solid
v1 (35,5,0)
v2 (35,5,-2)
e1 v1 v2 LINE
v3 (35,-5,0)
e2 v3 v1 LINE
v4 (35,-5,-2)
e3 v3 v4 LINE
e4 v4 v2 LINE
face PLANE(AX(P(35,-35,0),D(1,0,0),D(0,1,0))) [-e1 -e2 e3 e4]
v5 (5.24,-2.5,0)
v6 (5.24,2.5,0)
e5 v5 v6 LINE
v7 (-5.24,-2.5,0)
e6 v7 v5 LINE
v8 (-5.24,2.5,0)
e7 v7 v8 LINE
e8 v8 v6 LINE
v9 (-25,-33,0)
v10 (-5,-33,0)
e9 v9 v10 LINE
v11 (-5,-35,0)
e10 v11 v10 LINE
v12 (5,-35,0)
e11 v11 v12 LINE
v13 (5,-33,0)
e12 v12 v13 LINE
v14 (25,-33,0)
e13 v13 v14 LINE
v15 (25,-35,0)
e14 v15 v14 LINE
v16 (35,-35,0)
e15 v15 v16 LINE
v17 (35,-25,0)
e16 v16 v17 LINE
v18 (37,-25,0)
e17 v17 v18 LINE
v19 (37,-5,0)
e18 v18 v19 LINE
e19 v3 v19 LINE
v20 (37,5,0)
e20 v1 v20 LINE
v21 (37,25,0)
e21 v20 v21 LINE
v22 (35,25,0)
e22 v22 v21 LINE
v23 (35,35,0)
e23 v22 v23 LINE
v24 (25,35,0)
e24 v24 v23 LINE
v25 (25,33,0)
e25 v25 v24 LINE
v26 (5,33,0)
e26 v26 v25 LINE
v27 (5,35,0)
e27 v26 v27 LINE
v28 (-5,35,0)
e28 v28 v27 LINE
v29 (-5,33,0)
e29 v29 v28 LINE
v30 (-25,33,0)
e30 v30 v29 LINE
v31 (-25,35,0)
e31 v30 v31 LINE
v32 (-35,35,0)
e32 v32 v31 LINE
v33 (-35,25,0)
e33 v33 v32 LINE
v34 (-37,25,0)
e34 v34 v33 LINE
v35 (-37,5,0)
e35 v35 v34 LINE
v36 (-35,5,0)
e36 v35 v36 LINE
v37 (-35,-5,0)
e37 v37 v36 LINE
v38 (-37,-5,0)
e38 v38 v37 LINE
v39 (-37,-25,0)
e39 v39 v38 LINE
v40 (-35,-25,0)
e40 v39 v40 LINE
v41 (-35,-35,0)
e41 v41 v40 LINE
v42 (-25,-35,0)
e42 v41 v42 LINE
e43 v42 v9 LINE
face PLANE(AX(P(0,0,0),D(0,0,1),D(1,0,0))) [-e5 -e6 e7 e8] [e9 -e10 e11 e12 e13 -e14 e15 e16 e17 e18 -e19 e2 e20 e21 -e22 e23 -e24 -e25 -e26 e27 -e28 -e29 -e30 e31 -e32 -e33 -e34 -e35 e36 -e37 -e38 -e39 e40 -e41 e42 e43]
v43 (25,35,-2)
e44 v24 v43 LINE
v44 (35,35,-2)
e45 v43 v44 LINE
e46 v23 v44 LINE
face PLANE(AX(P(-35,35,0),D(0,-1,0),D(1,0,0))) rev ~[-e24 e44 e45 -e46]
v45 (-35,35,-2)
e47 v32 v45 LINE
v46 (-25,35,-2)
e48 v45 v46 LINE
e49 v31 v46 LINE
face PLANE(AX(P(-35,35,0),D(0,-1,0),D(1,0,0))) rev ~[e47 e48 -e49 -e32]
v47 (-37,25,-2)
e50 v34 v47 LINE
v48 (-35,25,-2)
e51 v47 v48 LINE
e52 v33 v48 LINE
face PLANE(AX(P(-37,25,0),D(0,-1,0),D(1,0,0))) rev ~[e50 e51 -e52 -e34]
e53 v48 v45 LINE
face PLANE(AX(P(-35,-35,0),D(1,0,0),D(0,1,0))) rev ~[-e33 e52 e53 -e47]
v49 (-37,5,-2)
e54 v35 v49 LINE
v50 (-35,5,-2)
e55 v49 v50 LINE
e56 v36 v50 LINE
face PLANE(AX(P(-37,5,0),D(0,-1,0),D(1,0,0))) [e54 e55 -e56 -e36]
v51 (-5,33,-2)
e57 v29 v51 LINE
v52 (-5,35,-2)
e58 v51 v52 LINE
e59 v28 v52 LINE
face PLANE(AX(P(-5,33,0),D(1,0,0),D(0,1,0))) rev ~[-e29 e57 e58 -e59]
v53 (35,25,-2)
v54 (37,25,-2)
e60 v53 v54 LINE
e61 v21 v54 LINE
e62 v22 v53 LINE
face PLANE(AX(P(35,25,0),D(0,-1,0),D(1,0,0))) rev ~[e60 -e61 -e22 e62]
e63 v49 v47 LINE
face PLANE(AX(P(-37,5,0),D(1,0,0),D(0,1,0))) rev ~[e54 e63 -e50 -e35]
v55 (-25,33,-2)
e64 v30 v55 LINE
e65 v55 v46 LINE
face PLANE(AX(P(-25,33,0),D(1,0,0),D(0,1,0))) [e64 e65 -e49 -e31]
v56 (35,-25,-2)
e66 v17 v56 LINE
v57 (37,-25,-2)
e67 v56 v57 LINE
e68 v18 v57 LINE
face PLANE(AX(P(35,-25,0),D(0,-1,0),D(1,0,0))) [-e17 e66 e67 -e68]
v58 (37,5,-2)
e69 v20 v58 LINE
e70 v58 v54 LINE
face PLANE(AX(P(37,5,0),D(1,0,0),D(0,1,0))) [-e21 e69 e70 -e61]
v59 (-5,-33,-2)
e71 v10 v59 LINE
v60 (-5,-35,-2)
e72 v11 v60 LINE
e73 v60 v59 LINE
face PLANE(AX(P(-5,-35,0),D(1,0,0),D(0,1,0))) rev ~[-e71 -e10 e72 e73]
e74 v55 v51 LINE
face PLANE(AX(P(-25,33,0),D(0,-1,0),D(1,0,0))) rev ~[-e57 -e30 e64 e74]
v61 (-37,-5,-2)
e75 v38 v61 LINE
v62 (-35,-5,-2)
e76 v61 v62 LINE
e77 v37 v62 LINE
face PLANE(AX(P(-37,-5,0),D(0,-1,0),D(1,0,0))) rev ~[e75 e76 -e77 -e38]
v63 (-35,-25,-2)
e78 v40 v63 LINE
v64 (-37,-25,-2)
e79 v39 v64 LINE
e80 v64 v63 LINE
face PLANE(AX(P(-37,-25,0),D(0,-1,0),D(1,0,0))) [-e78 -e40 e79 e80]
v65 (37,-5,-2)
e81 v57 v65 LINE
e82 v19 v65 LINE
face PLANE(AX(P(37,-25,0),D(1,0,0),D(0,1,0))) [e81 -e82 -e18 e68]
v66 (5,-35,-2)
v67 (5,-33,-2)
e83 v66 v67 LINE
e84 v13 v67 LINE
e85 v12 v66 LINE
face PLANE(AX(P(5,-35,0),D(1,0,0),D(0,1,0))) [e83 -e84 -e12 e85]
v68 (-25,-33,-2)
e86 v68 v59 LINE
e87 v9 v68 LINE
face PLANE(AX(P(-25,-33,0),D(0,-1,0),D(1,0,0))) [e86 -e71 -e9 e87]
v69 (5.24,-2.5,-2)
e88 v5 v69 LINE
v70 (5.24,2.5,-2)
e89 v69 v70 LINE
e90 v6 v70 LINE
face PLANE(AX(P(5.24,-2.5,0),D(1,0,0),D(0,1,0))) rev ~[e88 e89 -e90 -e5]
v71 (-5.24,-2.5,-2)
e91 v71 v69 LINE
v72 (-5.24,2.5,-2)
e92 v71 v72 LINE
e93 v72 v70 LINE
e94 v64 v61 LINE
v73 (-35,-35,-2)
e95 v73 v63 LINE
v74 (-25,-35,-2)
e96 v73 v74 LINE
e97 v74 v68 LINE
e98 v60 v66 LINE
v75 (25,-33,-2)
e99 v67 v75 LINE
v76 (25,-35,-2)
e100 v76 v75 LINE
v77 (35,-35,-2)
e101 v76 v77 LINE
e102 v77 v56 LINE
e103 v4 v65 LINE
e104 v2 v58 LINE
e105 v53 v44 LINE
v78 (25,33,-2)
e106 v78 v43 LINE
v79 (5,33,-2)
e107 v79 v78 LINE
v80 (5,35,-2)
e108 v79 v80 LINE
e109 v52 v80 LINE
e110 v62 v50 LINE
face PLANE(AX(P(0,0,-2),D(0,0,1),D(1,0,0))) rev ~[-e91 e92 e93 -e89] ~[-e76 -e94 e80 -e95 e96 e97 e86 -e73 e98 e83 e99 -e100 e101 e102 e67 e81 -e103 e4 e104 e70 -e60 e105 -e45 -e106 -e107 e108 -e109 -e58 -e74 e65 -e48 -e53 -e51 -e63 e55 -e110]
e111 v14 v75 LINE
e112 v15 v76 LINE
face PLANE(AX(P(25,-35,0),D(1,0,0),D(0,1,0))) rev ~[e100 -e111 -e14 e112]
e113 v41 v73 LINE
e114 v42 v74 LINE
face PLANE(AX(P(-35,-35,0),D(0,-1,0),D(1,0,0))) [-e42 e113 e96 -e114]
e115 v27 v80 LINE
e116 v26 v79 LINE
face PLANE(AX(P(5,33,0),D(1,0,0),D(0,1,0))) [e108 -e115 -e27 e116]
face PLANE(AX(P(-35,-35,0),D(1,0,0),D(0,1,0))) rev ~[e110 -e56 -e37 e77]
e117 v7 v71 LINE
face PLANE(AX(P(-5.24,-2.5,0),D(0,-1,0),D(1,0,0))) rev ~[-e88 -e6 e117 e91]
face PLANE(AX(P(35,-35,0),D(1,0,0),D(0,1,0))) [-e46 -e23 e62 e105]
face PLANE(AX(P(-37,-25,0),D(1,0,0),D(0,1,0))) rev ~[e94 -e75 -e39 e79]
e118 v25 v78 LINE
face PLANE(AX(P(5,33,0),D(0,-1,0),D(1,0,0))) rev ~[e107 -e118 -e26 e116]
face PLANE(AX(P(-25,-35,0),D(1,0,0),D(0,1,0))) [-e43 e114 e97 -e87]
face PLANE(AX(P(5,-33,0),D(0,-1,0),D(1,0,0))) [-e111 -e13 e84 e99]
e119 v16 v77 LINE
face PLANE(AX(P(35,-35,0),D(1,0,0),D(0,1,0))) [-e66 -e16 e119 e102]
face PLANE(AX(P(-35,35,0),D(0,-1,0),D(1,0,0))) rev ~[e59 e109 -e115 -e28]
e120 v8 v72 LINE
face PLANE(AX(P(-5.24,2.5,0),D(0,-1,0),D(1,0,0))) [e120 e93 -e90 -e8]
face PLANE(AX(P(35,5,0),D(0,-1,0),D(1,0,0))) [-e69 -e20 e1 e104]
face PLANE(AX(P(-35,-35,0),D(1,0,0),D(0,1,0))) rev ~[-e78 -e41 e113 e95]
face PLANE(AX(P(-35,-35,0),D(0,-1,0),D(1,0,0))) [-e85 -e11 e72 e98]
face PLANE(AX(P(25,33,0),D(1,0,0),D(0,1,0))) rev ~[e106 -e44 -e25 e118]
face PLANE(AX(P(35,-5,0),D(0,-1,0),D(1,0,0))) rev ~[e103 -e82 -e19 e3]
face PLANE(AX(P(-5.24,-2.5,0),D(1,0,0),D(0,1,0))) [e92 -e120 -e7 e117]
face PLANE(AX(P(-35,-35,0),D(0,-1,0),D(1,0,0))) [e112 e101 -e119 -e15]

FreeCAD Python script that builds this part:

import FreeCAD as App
import Part
import Sketcher

V = App.Vector


def add_polygon(sketch, points):
    """Adds a closed chain of lines whose ends are joined by coincident constraints."""
    first, n = sketch.GeometryCount, len(points)
    for a, b in zip(points, points[1:] + points[:1]):
        sketch.addGeometry(Part.LineSegment(App.Vector(*a, 0), App.Vector(*b, 0)), False)
    for i in range(n):
        sketch.addConstraint(Sketcher.Constraint("Coincident", first + i, 2, first + (i + 1) % n, 1))

doc = App.newDocument("Part")
body = doc.addObject("PartDesign::Body", "Body")

# Sketch on XY plane
sketch1 = doc.addObject("Sketcher::SketchObject", "Sketch")
body.addObject(sketch1)
sketch1.AttachmentSupport = (doc.XY_Plane, [""])
sketch1.MapMode = "FlatFace"
add_polygon(sketch1, [(-35, 35), (-35, -35), (35, -35), (35, 35)])  # lines 0-3
sketch1.addConstraint([
    Sketcher.Constraint("Vertical", 0),
    Sketcher.Constraint("Horizontal", 1),
    Sketcher.Constraint("Vertical", 2),
    Sketcher.Constraint("Horizontal", 3),
    Sketcher.Constraint("Symmetric", 0, 2, 2, 2, -1, 1),
    Sketcher.Constraint("Equal", 3, 0),
    Sketcher.Constraint("DistanceX", 1, 1, 1, 2, 70.0),
])
pad1 = doc.addObject("PartDesign::Pad", "Pad")
body.addObject(pad1)
pad1.Profile = sketch1
pad1.Length = 2
pad1.Reversed = True

# Sketch on XY plane
sketch2 = doc.addObject("Sketcher::SketchObject", "Sketch001")
body.addObject(sketch2)
sketch2.AttachmentSupport = (doc.XY_Plane, [""])
sketch2.MapMode = "FlatFace"
add_polygon(sketch2, [(-37, 25), (-37, 5), (-35, 5), (-35, 25)])  # lines 0-3
add_polygon(sketch2, [(-37, -5), (-37, -25), (-35, -25), (-35, -5)])  # lines 4-7
add_polygon(sketch2, [(35, -5), (35, -25), (37, -25), (37, -5)])  # lines 8-11
add_polygon(sketch2, [(35, 25), (35, 5), (37, 5), (37, 25)])  # lines 12-15
sketch2.addConstraint([
    Sketcher.Constraint("Vertical", 0),
    Sketcher.Constraint("Horizontal", 1),
    Sketcher.Constraint("Vertical", 2),
    Sketcher.Constraint("Horizontal", 3),
    Sketcher.Constraint("Vertical", 4),
    Sketcher.Constraint("Horizontal", 5),
    Sketcher.Constraint("Vertical", 6),
    Sketcher.Constraint("Horizontal", 7),
    Sketcher.Constraint("Vertical", 8),
    Sketcher.Constraint("Horizontal", 9),
    Sketcher.Constraint("Vertical", 10),
    Sketcher.Constraint("Horizontal", 11),
    Sketcher.Constraint("Vertical", 12),
    Sketcher.Constraint("Horizontal", 13),
    Sketcher.Constraint("Vertical", 14),
    Sketcher.Constraint("Horizontal", 15),
    Sketcher.Constraint("Symmetric", 2, 2, 8, 2, -1, 1),
    Sketcher.Constraint("Symmetric", 0, 2, 10, 2, -1, 1),
    Sketcher.Constraint("Symmetric", 6, 2, 12, 2, -1, 1),
    Sketcher.Constraint("Symmetric", 4, 2, 14, 2, -1, 1),
    Sketcher.Constraint("Symmetric", 5, 2, 8, 2, -2),
    Sketcher.Constraint("Symmetric", 7, 2, 10, 2, -2),
    Sketcher.Constraint("DistanceX", 1, 1, 1, 2, 2.0),
    Sketcher.Constraint("DistanceY", 0, 2, 0, 1, 20.0),
    Sketcher.Constraint("DistanceX", 0, 2, -1, 1, 37.0),
    Sketcher.Constraint("DistanceY", -1, 1, 0, 2, 5.0),
])
pad2 = doc.addObject("PartDesign::Pad", "Pad001")
body.addObject(pad2)
pad2.Profile = sketch2
pad2.Length = 2
pad2.Reversed = True

# Sketch on XY plane
sketch3 = doc.addObject("Sketcher::SketchObject", "Sketch002")
body.addObject(sketch3)
sketch3.AttachmentSupport = (doc.XY_Plane, [""])
sketch3.MapMode = "FlatFace"
add_polygon(sketch3, [(-25, 35), (-25, 33), (-5, 33), (-5, 35)])  # lines 0-3
add_polygon(sketch3, [(5, 35), (5, 33), (25, 33), (25, 35)])  # lines 4-7
add_polygon(sketch3, [(-25, -33), (-25, -35), (-5, -35), (-5, -33)])  # lines 8-11
add_polygon(sketch3, [(5, -33), (5, -35), (25, -35), (25, -33)])  # lines 12-15
sketch3.addConstraint([
    Sketcher.Constraint("Vertical", 0),
    Sketcher.Constraint("Horizontal", 1),
    Sketcher.Constraint("Vertical", 2),
    Sketcher.Constraint("Horizontal", 3),
    Sketcher.Constraint("Vertical", 4),
    Sketcher.Constraint("Horizontal", 5),
    Sketcher.Constraint("Vertical", 6),
    Sketcher.Constraint("Horizontal", 7),
    Sketcher.Constraint("Vertical", 8),
    Sketcher.Constraint("Horizontal", 9),
    Sketcher.Constraint("Vertical", 10),
    Sketcher.Constraint("Horizontal", 11),
    Sketcher.Constraint("Vertical", 12),
    Sketcher.Constraint("Horizontal", 13),
    Sketcher.Constraint("Vertical", 14),
    Sketcher.Constraint("Horizontal", 15),
    Sketcher.Constraint("Symmetric", 6, 2, 8, 2, -1, 1),
    Sketcher.Constraint("Symmetric", 4, 2, 10, 2, -1, 1),
    Sketcher.Constraint("Symmetric", 2, 2, 12, 2, -1, 1),
    Sketcher.Constraint("Symmetric", 0, 2, 14, 2, -1, 1),
    Sketcher.Constraint("Symmetric", 1, 2, 4, 2, -2),
    Sketcher.Constraint("Symmetric", 3, 2, 6, 2, -2),
    Sketcher.Constraint("DistanceX", 1, 1, 1, 2, 20.0),
    Sketcher.Constraint("DistanceY", 0, 2, 0, 1, 2.0),
    Sketcher.Constraint("DistanceX", 0, 2, -1, 1, 25.0),
    Sketcher.Constraint("DistanceY", -1, 1, 0, 2, 33.0),
])
pocket1 = doc.addObject("PartDesign::Pocket", "Pocket")
body.addObject(pocket1)
pocket1.Profile = sketch3
pocket1.Length = 2

# Sketch on XY plane
sketch4 = doc.addObject("Sketcher::SketchObject", "Sketch003")
body.addObject(sketch4)
sketch4.AttachmentSupport = (doc.XY_Plane, [""])
sketch4.MapMode = "FlatFace"
add_polygon(sketch4, [(-5, 2), (-5, -2), (5, -2), (5, 2)])  # lines 0-3
sketch4.addConstraint([
    Sketcher.Constraint("Vertical", 0),
    Sketcher.Constraint("Horizontal", 1),
    Sketcher.Constraint("Vertical", 2),
    Sketcher.Constraint("Horizontal", 3),
    Sketcher.Constraint("Symmetric", 0, 2, 2, 2, -1, 1),
    Sketcher.Constraint("DistanceY", 0, 2, 0, 1, 5.0),
    Sketcher.Constraint("DistanceX", 1, 1, 1, 2, 10.48),
])
pocket2 = doc.addObject("PartDesign::Pocket", "Pocket001")
body.addObject(pocket2)
pocket2.Profile = sketch4
pocket2.Length = 10

doc.recompute()
